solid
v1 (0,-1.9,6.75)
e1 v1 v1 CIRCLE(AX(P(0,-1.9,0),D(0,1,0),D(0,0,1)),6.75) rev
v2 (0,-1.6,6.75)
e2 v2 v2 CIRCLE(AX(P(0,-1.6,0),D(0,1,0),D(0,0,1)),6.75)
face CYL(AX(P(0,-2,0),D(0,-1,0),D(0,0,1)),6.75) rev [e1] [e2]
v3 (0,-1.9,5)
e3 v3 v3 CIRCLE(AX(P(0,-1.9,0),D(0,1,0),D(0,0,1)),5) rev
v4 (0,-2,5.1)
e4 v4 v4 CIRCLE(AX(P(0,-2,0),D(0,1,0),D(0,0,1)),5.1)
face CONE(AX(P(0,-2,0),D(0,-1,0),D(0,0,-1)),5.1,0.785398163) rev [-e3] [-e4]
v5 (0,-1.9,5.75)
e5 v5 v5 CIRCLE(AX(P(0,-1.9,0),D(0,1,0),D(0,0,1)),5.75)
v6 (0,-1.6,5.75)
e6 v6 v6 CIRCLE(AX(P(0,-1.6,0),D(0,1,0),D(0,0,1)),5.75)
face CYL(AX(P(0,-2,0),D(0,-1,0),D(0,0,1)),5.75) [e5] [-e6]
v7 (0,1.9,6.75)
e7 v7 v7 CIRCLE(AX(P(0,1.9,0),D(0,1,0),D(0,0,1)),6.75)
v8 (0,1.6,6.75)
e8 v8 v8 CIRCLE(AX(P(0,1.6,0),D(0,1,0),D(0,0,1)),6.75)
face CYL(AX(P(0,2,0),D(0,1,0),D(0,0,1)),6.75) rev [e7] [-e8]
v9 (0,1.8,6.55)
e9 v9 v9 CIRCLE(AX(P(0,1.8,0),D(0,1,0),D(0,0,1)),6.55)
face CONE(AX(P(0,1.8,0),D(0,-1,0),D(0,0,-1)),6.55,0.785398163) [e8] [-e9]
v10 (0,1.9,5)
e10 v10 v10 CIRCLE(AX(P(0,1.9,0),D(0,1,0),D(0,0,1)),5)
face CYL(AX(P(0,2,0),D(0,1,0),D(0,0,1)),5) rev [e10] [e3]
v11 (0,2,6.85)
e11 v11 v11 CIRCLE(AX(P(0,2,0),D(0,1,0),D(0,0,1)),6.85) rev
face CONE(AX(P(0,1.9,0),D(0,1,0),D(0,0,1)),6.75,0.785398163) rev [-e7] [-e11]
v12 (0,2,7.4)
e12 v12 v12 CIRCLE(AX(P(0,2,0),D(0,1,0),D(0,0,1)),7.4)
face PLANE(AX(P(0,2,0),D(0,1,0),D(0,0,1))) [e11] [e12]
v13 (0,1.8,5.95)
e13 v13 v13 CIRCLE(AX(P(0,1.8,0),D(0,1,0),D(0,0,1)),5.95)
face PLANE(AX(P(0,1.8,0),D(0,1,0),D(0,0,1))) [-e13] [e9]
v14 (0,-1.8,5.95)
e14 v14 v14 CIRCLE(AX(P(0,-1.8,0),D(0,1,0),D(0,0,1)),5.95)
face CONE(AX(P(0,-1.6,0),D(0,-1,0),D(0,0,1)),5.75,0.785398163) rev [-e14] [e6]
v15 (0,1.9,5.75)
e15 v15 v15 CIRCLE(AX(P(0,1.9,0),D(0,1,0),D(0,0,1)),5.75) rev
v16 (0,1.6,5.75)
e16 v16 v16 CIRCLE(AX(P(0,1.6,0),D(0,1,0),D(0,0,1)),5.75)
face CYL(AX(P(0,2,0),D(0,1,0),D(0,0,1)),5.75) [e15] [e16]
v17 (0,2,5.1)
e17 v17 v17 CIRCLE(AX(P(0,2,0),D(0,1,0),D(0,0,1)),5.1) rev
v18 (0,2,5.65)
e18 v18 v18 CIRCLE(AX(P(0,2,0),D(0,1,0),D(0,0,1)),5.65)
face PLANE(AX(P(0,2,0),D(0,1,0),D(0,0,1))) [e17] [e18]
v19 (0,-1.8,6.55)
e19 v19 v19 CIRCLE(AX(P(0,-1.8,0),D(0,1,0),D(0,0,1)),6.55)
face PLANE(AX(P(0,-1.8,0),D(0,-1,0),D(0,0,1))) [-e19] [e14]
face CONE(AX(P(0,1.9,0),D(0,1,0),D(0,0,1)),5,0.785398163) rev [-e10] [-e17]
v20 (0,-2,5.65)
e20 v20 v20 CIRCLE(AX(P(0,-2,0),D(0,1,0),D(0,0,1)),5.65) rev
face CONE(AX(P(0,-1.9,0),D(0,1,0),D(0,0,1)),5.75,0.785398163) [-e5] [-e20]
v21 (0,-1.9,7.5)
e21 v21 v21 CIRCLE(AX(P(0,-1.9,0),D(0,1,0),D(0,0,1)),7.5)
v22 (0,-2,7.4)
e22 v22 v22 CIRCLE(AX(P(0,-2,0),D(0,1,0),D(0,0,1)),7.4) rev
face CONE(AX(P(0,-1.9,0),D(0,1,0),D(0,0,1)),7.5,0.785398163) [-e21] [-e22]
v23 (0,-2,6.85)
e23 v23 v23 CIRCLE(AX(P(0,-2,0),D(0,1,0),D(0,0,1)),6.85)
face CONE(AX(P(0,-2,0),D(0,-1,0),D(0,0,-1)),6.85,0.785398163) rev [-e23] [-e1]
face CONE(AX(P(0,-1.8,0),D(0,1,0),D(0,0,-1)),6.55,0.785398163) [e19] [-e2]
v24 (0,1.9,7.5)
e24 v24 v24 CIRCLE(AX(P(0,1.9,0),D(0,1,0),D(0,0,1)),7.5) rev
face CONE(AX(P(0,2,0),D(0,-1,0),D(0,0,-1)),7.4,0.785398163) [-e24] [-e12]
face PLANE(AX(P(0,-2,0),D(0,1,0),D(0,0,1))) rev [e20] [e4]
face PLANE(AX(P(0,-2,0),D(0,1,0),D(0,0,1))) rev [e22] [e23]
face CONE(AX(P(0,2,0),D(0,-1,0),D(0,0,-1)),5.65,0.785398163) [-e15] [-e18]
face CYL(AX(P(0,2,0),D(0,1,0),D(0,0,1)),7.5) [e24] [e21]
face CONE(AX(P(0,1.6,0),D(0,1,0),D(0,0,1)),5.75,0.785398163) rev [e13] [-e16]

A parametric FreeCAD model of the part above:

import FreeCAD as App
import Part
import Sketcher
from FreeCAD import Vector
Q = App.Units.Quantity


def edges_at(feature, points):
    """Names of the edges that pass closest to the given points."""
    edges = feature.Shape.Edges
    near = lambda p: min(range(len(edges)), key=lambda i: edges[i].distToShape(Part.Vertex(*p))[0])
    return sorted({f"Edge{near(p) + 1}" for p in points})


def add_polygon(sketch, points):
    """Adds a closed chain of lines whose ends are joined by coincident constraints."""
    first, n = sketch.GeometryCount, len(points)
    for a, b in zip(points, points[1:] + points[:1]):
        sketch.addGeometry(Part.LineSegment(App.Vector(*a, 0), App.Vector(*b, 0)), False)
    for i in range(n):
        sketch.addConstraint(Sketcher.Constraint("Coincident", first + i, 2, first + (i + 1) % n, 1))

doc = App.newDocument("Part")
body = doc.addObject("PartDesign::Body", "Body")

# Sketch on YZ plane
sketch1 = doc.addObject("Sketcher::SketchObject", "Sketch")
body.addObject(sketch1)
sketch1.AttachmentSupport = (doc.YZ_Plane, [""])
sketch1.MapMode = "FlatFace"
add_polygon(sketch1, [(2, -5), (-2, -5), (-2, -7.5), (2, -7.5)])  # lines 0-3
sketch1.addConstraint([
    Sketcher.Constraint("Horizontal", 0),
    Sketcher.Constraint("Vertical", 1),
    Sketcher.Constraint("Horizontal", 2),
    Sketcher.Constraint("Vertical", 3),
    Sketcher.Constraint("DistanceX", 0, 2, 0, 1, Q("4 mm")),
    Sketcher.Constraint("DistanceY", 1, 2, 1, 1, Q("2.5 mm")),
    Sketcher.Constraint("DistanceX", 0, 2, -1, 1, Q("2 mm")),
    Sketcher.Constraint("DistanceY", 0, 2, -1, 1, Q("5 mm")),
])
revolution = doc.addObject("PartDesign::Revolution", "Revolution")
body.addObject(revolution)
revolution.Profile = sketch1
revolution.ReferenceAxis = (sketch1, ["H_Axis"])
revolution.Angle = 360

# Sketch on YZ plane
sketch2 = doc.addObject("Sketcher::SketchObject", "Sketch001")
body.addObject(sketch2)
sketch2.AttachmentSupport = (doc.YZ_Plane, [""])
sketch2.MapMode = "FlatFace"
add_polygon(sketch2, [(1.8, -6.55), (1.6, -6.75), (2, -6.75), (2, -5.75), (1.6, -5.75), (1.8, -5.95)])  # lines 0-5
sketch2.addConstraint([
    Sketcher.Constraint("Horizontal", 1),
    Sketcher.Constraint("Vertical", 2),
    Sketcher.Constraint("Horizontal", 3),
    Sketcher.Constraint("Vertical", 5),
    Sketcher.Constraint("Perpendicular", 0, 4),
    Sketcher.Constraint("Vertical", 0, 2, 3, 2),
    Sketcher.Constraint("Equal", 0, 4),
    Sketcher.Constraint("DistanceY", 2, 1, 2, 2, Q("1 mm")),
    Sketcher.Constraint("DistanceX", 1, 1, 1, 2, Q("0.4 mm")),
    Sketcher.Constraint("DistanceY", 5, 2, 5, 1, Q("0.6 mm")),
    Sketcher.Constraint("DistanceX", -1, 1, 1, 2, Q("2 mm")),
    Sketcher.Constraint("DistanceY", 0, 2, -1, 1, Q("6.75 mm")),
])
groove = doc.addObject("PartDesign::Groove", "Groove")
body.addObject(groove)
groove.Profile = sketch2
groove.ReferenceAxis = (sketch2, ["H_Axis"])
groove.Angle = 360
doc.recompute()

mirrored = doc.addObject("PartDesign::Mirrored", "Mirrored")
body.addObject(mirrored)
mirrored.Originals = [groove]
mirrored.MirrorPlane = (doc.XZ_Plane, [""])
body.Tip = mirrored
doc.recompute()

chamfer = doc.addObject("PartDesign::Chamfer", "Chamfer")
body.addObject(chamfer)
chamfer.Base = (mirrored, edges_at(mirrored, [
    (0, 2, 6.75),
    (0, 2, 5.75),
    (0, -2, 6.75),
    (0, -2, 5.75),
    (0, 2, 7.5),
    (0, -2, 7.5),
    (0, -2, 5),
    (0, 2, 5),
]))
chamfer.Size = 0.1

doc.recompute()
